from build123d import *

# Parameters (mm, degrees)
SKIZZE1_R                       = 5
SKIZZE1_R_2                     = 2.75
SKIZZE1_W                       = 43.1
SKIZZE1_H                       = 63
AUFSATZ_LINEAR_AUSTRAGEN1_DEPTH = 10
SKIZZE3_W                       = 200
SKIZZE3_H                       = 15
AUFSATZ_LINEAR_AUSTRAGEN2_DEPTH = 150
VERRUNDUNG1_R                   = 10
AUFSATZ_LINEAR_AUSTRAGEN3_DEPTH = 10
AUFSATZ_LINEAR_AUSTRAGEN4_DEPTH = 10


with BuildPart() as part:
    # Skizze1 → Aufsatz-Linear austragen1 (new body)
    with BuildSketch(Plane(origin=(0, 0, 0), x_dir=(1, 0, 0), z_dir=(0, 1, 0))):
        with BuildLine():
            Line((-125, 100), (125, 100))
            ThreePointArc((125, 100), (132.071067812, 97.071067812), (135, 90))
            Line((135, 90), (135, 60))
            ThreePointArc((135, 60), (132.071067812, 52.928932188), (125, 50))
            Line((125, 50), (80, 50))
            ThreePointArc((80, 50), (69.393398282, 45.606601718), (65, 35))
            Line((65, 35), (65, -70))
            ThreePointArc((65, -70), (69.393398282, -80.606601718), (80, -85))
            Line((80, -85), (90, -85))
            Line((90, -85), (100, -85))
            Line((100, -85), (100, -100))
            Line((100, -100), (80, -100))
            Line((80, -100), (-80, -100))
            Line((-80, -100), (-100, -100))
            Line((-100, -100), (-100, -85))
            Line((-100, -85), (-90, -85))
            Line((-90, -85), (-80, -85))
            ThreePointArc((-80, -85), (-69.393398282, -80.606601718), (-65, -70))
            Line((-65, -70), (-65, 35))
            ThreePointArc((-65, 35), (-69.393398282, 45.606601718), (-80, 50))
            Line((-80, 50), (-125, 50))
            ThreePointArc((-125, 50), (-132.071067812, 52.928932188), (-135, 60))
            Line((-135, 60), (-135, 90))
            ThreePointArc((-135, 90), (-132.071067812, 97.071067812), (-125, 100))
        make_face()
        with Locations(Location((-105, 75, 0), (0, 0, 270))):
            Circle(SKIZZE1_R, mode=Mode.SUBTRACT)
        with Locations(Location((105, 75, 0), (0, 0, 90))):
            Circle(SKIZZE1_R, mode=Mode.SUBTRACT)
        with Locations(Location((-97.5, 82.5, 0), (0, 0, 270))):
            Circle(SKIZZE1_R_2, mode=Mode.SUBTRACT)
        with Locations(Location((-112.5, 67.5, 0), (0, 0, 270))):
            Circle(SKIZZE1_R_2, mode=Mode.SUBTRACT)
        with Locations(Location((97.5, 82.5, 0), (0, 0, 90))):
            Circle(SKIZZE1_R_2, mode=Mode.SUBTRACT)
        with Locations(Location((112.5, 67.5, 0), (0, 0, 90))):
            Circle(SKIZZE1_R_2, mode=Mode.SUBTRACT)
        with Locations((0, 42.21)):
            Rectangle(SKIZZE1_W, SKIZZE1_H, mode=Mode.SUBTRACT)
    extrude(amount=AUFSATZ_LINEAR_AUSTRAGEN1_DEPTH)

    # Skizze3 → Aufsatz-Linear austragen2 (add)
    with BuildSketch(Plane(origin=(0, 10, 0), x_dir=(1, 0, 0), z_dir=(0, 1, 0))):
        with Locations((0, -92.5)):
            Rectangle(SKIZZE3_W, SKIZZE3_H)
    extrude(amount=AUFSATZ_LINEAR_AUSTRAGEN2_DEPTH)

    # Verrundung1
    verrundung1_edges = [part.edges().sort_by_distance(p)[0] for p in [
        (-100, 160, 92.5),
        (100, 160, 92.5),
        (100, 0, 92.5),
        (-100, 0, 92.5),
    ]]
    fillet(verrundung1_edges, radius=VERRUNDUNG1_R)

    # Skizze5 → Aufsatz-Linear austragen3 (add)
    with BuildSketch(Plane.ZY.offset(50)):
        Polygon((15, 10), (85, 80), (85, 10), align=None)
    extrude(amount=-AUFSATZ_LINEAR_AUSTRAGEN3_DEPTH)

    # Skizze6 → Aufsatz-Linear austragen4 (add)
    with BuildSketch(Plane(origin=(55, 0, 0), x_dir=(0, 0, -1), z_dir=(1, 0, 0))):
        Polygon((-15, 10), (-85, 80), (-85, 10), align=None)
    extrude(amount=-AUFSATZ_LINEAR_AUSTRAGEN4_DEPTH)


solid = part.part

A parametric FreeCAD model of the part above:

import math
import FreeCAD as App
import Part
import Sketcher

V = App.Vector


def edges_at(feature, points):
    """Names of the edges that pass closest to the given points."""
    edges = feature.Shape.Edges
    near = lambda p: min(range(len(edges)), key=lambda i: edges[i].distToShape(Part.Vertex(*p))[0])
    return sorted({f"Edge{near(p) + 1}" for p in points})

doc = App.newDocument("Part")
body = doc.addObject("PartDesign::Body", "Body")

# Sketch on XZ plane
sketch1 = body.newObject("Sketcher::SketchObject", "Sketch")
sketch1.AttachmentSupport = (doc.getObject("XZ_Plane"), [""])
sketch1.MapMode = "FlatFace"
sketch1.addGeometry(Part.LineSegment(V(125, -100, 0), V(-125, -100, 0)), False)
sketch1.addGeometry(Part.ArcOfCircle(Part.Circle(V(-125, -90, 0), V(0, 0, 1), 10), math.radians(180), math.radians(270)), False)
sketch1.addGeometry(Part.LineSegment(V(-135, -90, 0), V(-135, -60, 0)), False)
sketch1.addGeometry(Part.ArcOfCircle(Part.Circle(V(-125, -60, 0), V(0, 0, 1), 10), math.radians(90), math.radians(180)), False)
sketch1.addGeometry(Part.LineSegment(V(-125, -50, 0), V(-80, -50, 0)), False)
sketch1.addGeometry(Part.ArcOfCircle(Part.Circle(V(-80, -35, 0), V(0, 0, 1), 15), math.radians(-90), math.radians(0)), False)
sketch1.addGeometry(Part.LineSegment(V(-65, -35, 0), V(-65, 70, 0)), False)
sketch1.addGeometry(Part.ArcOfCircle(Part.Circle(V(-80, 70, 0), V(0, 0, 1), 15), math.radians(0), math.radians(90)), False)
sketch1.addGeometry(Part.LineSegment(V(-80, 85, 0), V(-100, 85, 0)), False)
sketch1.addGeometry(Part.LineSegment(V(-100, 85, 0), V(-100, 100, 0)), False)
sketch1.addGeometry(Part.LineSegment(V(-100, 100, 0), V(100, 100, 0)), False)
sketch1.addGeometry(Part.LineSegment(V(100, 100, 0), V(100, 85, 0)), False)
sketch1.addGeometry(Part.LineSegment(V(100, 85, 0), V(80, 85, 0)), False)
sketch1.addGeometry(Part.ArcOfCircle(Part.Circle(V(80, 70, 0), V(0, 0, 1), 15), math.radians(90), math.radians(180)), False)
sketch1.addGeometry(Part.LineSegment(V(65, 70, 0), V(65, -35, 0)), False)
sketch1.addGeometry(Part.ArcOfCircle(Part.Circle(V(80, -35, 0), V(0, 0, 1), 15), math.radians(180), math.radians(270)), False)
sketch1.addGeometry(Part.LineSegment(V(80, -50, 0), V(125, -50, 0)), False)
sketch1.addGeometry(Part.ArcOfCircle(Part.Circle(V(125, -60, 0), V(0, 0, 1), 10), math.radians(0), math.radians(90)), False)
sketch1.addGeometry(Part.LineSegment(V(135, -60, 0), V(135, -90, 0)), False)
sketch1.addGeometry(Part.ArcOfCircle(Part.Circle(V(125, -90, 0), V(0, 0, 1), 10), math.radians(-90), math.radians(0)), False)
sketch1.addGeometry(Part.LineSegment(V(-21.6, -10.7, 0), V(-21.6, -73.7, 0)), False)
sketch1.addGeometry(Part.LineSegment(V(-21.6, -73.7, 0), V(21.6, -73.7, 0)), False)
sketch1.addGeometry(Part.LineSegment(V(21.6, -73.7, 0), V(21.6, -10.7, 0)), False)
sketch1.addGeometry(Part.LineSegment(V(21.6, -10.7, 0), V(-21.6, -10.7, 0)), False)
sketch1.addGeometry(Part.Circle(V(112.5, -67.5, 0), V(0, 0, 1), 2.8), False)
sketch1.addGeometry(Part.Circle(V(105, -75, 0), V(0, 0, 1), 5), False)
sketch1.addGeometry(Part.Circle(V(97.5, -82.5, 0), V(0, 0, 1), 2.8), False)
sketch1.addGeometry(Part.Circle(V(-112.5, -67.5, 0), V(0, 0, 1), 2.8), False)
sketch1.addGeometry(Part.Circle(V(-105, -75, 0), V(0, 0, 1), 5), False)
sketch1.addGeometry(Part.Circle(V(-97.5, -82.5, 0), V(0, 0, 1), 2.8), False)
sketch1.addConstraint(Sketcher.Constraint("Tangent", 0, 2, 1, 2))
sketch1.addConstraint(Sketcher.Constraint("Tangent", 1, 1, 2, 1))
sketch1.addConstraint(Sketcher.Constraint("Tangent", 2, 2, 3, 2))
sketch1.addConstraint(Sketcher.Constraint("Tangent", 3, 1, 4, 1))
sketch1.addConstraint(Sketcher.Constraint("Tangent", 4, 2, 5, 1))
sketch1.addConstraint(Sketcher.Constraint("Tangent", 5, 2, 6, 1))
sketch1.addConstraint(Sketcher.Constraint("Tangent", 6, 2, 7, 1))
sketch1.addConstraint(Sketcher.Constraint("Tangent", 7, 2, 8, 1))
sketch1.addConstraint(Sketcher.Constraint("Coincident", 8, 2, 9, 1))
sketch1.addConstraint(Sketcher.Constraint("Coincident", 9, 2, 10, 1))
sketch1.addConstraint(Sketcher.Constraint("Coincident", 10, 2, 11, 1))
sketch1.addConstraint(Sketcher.Constraint("Coincident", 11, 2, 12, 1))
sketch1.addConstraint(Sketcher.Constraint("Tangent", 12, 2, 13, 1))
sketch1.addConstraint(Sketcher.Constraint("Tangent", 13, 2, 14, 1))
sketch1.addConstraint(Sketcher.Constraint("Tangent", 14, 2, 15, 1))
sketch1.addConstraint(Sketcher.Constraint("Tangent", 15, 2, 16, 1))
sketch1.addConstraint(Sketcher.Constraint("Tangent", 16, 2, 17, 2))
sketch1.addConstraint(Sketcher.Constraint("Tangent", 17, 1, 18, 1))
sketch1.addConstraint(Sketcher.Constraint("Tangent", 18, 2, 19, 2))
sketch1.addConstraint(Sketcher.Constraint("Tangent", 19, 1, 0, 1))
sketch1.addConstraint(Sketcher.Constraint("Coincident", 20, 2, 21, 1))
sketch1.addConstraint(Sketcher.Constraint("Coincident", 21, 2, 22, 1))
sketch1.addConstraint(Sketcher.Constraint("Coincident", 22, 2, 23, 1))
sketch1.addConstraint(Sketcher.Constraint("Coincident", 23, 2, 20, 1))
sketch1.addConstraint(Sketcher.Constraint("Horizontal", 0))
sketch1.addConstraint(Sketcher.Constraint("Vertical", 2))
sketch1.addConstraint(Sketcher.Constraint("Horizontal", 4))
sketch1.addConstraint(Sketcher.Constraint("Vertical", 6))
sketch1.addConstraint(Sketcher.Constraint("Horizontal", 8))
sketch1.addConstraint(Sketcher.Constraint("Vertical", 9))
sketch1.addConstraint(Sketcher.Constraint("Horizontal", 10))
sketch1.addConstraint(Sketcher.Constraint("Vertical", 11))
sketch1.addConstraint(Sketcher.Constraint("Horizontal", 12))
sketch1.addConstraint(Sketcher.Constraint("Vertical", 14))
sketch1.addConstraint(Sketcher.Constraint("Horizontal", 16))
sketch1.addConstraint(Sketcher.Constraint("Vertical", 18))
sketch1.addConstraint(Sketcher.Constraint("Vertical", 20))
sketch1.addConstraint(Sketcher.Constraint("Horizontal", 21))
sketch1.addConstraint(Sketcher.Constraint("Vertical", 22))
sketch1.addConstraint(Sketcher.Constraint("Horizontal", 23))
sketch1.addConstraint(Sketcher.Constraint("Equal", 1, 3))
sketch1.addConstraint(Sketcher.Constraint("Equal", 5, 7))
sketch1.addConstraint(Sketcher.Constraint("Equal", 7, 13))
sketch1.addConstraint(Sketcher.Constraint("Equal", 13, 15))
sketch1.addConstraint(Sketcher.Constraint("Equal", 3, 17))
sketch1.addConstraint(Sketcher.Constraint("Equal", 17, 19))
sketch1.addConstraint(Sketcher.Constraint("Equal", 24, 26))
sketch1.addConstraint(Sketcher.Constraint("Equal", 26, 27))
sketch1.addConstraint(Sketcher.Constraint("Equal", 25, 28))
sketch1.addConstraint(Sketcher.Constraint("Equal", 27, 29))
sketch1.addConstraint(Sketcher.Constraint("Symmetric", 7, 3, 13, 3, -2))
sketch1.addConstraint(Sketcher.Constraint("Symmetric", 3, 3, 17, 3, -2))
sketch1.addConstraint(Sketcher.Constraint("Symmetric", 24, 3, 27, 3, -2))
sketch1.addConstraint(Sketcher.Constraint("Symmetric", 25, 3, 28, 3, -2))
sketch1.addConstraint(Sketcher.Constraint("Symmetric", 26, 3, 29, 3, -2))
sketch1.addConstraint(Sketcher.Constraint("Equal", 8, 12))
sketch1.addConstraint(Sketcher.Constraint("Diameter", 25, 10.0))
sketch1.addConstraint(Sketcher.Constraint("Radius", 1, 10.0))
sketch1.addConstraint(Sketcher.Constraint("Radius", 5, 15.0))
sketch1.addConstraint(Sketcher.Constraint("Diameter", 24, 5.5))
sketch1.addConstraint(Sketcher.Constraint("DistanceX", 0, 2, 0, 1, 250.0))
sketch1.addConstraint(Sketcher.Constraint("DistanceX", 4, 1, 4, 2, 45.0))
sketch1.addConstraint(Sketcher.Constraint("DistanceX", 8, 2, 8, 1, 20.0))
sketch1.addConstraint(Sketcher.Constraint("DistanceY", 2, 1, 2, 2, 30.0))
sketch1.addConstraint(Sketcher.Constraint("DistanceY", 6, 1, 6, 2, 105.0))
sketch1.addConstraint(Sketcher.Constraint("DistanceY", 9, 1, 9, 2, 15.0))
sketch1.addConstraint(Sketcher.Constraint("DistanceY", 20, 2, 20, 1, 63.0))
sketch1.addConstraint(Sketcher.Constraint("DistanceX", 21, 1, 21, 2, 43.1))
sketch1.addConstraint(Sketcher.Constraint("DistanceY", 1, 3, -1, 1, 90.0))
sketch1.addConstraint(Sketcher.Constraint("DistanceX", -1, 1, 25, 3, 105.0))
sketch1.addConstraint(Sketcher.Constraint("DistanceY", 25, 3, -1, 1, 75.0))
sketch1.addConstraint(Sketcher.Constraint("DistanceX", 26, 3, 24, 3, 15.0))
sketch1.addConstraint(Sketcher.Constraint("DistanceY", 26, 3, 24, 3, 15.0))
sketch1.addConstraint(Sketcher.Constraint("DistanceX", -1, 1, 24, 3, 112.5))
sketch1.addConstraint(Sketcher.Constraint("DistanceY", 24, 3, -1, 1, 67.5))
sketch1.addConstraint(Sketcher.Constraint("DistanceX", 20, 2, -1, 1, 21.55))
sketch1.addConstraint(Sketcher.Constraint("DistanceY", 20, 2, -1, 1, 73.71))
pad1 = body.newObject("PartDesign::Pad", "Pad")
pad1.Profile = sketch1
pad1.Length = 10
pad1.Reversed = True

# Sketch on XZ plane
sketch2 = body.newObject("Sketcher::SketchObject", "Sketch001")
sketch2.AttachmentSupport = (doc.getObject("XZ_Plane"), [""])
sketch2.MapMode = "FlatFace"
sketch2.AttachmentOffset = App.Placement(V(0, 0, -10), App.Rotation())
sketch2.addGeometry(Part.LineSegment(V(-100, 85, 0), V(-100, 100, 0)), False)
sketch2.addGeometry(Part.LineSegment(V(-100, 100, 0), V(100, 100, 0)), False)
sketch2.addGeometry(Part.LineSegment(V(100, 100, 0), V(100, 85, 0)), False)
sketch2.addGeometry(Part.LineSegment(V(100, 85, 0), V(-100, 85, 0)), False)
sketch2.addConstraint(Sketcher.Constraint("Coincident", 0, 2, 1, 1))
sketch2.addConstraint(Sketcher.Constraint("Coincident", 1, 2, 2, 1))
sketch2.addConstraint(Sketcher.Constraint("Coincident", 2, 2, 3, 1))
sketch2.addConstraint(Sketcher.Constraint("Coincident", 3, 2, 0, 1))
sketch2.addConstraint(Sketcher.Constraint("Vertical", 0))
sketch2.addConstraint(Sketcher.Constraint("Horizontal", 1))
sketch2.addConstraint(Sketcher.Constraint("Vertical", 2))
sketch2.addConstraint(Sketcher.Constraint("Horizontal", 3))
sketch2.addConstraint(Sketcher.Constraint("DistanceX", 1, 1, 1, 2, 200.0))
sketch2.addConstraint(Sketcher.Constraint("DistanceY", 0, 1, 0, 2, 15.0))
sketch2.addConstraint(Sketcher.Constraint("DistanceX", 0, 2, -1, 1, 100.0))
sketch2.addConstraint(Sketcher.Constraint("DistanceY", -1, 1, 0, 2, 100.0))
pad2 = body.newObject("PartDesign::Pad", "Pad001")
pad2.Profile = sketch2
pad2.Length = 150
pad2.Reversed = True
doc.recompute()

fillet = body.newObject("PartDesign::Fillet", "Fillet")
fillet.Base = (pad2, edges_at(pad2, [
    (-100, 160, 92.5),
    (100, 160, 92.5),
    (100, 0, 92.5),
    (-100, 0, 92.5),
]))
fillet.Radius = 10

# Sketch on YZ plane
sketch3 = body.newObject("Sketcher::SketchObject", "Sketch002")
sketch3.AttachmentSupport = (doc.getObject("YZ_Plane"), [""])
sketch3.MapMode = "FlatFace"
sketch3.AttachmentOffset = App.Placement(V(0, 0, -50), App.Rotation())
sketch3.addGeometry(Part.LineSegment(V(80, 85, 0), V(10, 15, 0)), False)
sketch3.addGeometry(Part.LineSegment(V(10, 15, 0), V(10, 85, 0)), False)
sketch3.addGeometry(Part.LineSegment(V(10, 85, 0), V(80, 85, 0)), False)
sketch3.addConstraint(Sketcher.Constraint("Coincident", 0, 2, 1, 1))
sketch3.addConstraint(Sketcher.Constraint("Coincident", 1, 2, 2, 1))
sketch3.addConstraint(Sketcher.Constraint("Coincident", 2, 2, 0, 1))
sketch3.addConstraint(Sketcher.Constraint("Vertical", 1))
sketch3.addConstraint(Sketcher.Constraint("Horizontal", 2))
sketch3.addConstraint(Sketcher.Constraint("Equal", 2, 1))
sketch3.addConstraint(Sketcher.Constraint("DistanceX", 2, 1, 2, 2, 70.0))
sketch3.addConstraint(Sketcher.Constraint("DistanceX", -1, 1, 0, 2, 10.0))
sketch3.addConstraint(Sketcher.Constraint("DistanceY", -1, 1, 0, 2, 15.0))
pad3 = body.newObject("PartDesign::Pad", "Pad002")
pad3.Profile = sketch3
pad3.Length = 10

# Sketch on YZ plane
sketch4 = body.newObject("Sketcher::SketchObject", "Sketch003")
sketch4.AttachmentSupport = (doc.getObject("YZ_Plane"), [""])
sketch4.MapMode = "FlatFace"
sketch4.AttachmentOffset = App.Placement(V(0, 0, 55), App.Rotation())
sketch4.addGeometry(Part.LineSegment(V(10, 15, 0), V(80, 85, 0)), False)
sketch4.addGeometry(Part.LineSegment(V(80, 85, 0), V(10, 85, 0)), False)
sketch4.addGeometry(Part.LineSegment(V(10, 85, 0), V(10, 15, 0)), False)
sketch4.addConstraint(Sketcher.Constraint("Coincident", 0, 2, 1, 1))
sketch4.addConstraint(Sketcher.Constraint("Coincident", 1, 2, 2, 1))
sketch4.addConstraint(Sketcher.Constraint("Coincident", 2, 2, 0, 1))
sketch4.addConstraint(Sketcher.Constraint("Horizontal", 1))
sketch4.addConstraint(Sketcher.Constraint("Vertical", 2))
sketch4.addConstraint(Sketcher.Constraint("Equal", 1, 2))
sketch4.addConstraint(Sketcher.Constraint("DistanceX", 1, 2, 1, 1, 70.0))
sketch4.addConstraint(Sketcher.Constraint("DistanceX", -1, 1, 0, 2, 80.0))
sketch4.addConstraint(Sketcher.Constraint("DistanceY", -1, 1, 0, 2, 85.0))
pad4 = body.newObject("PartDesign::Pad", "Pad003")
pad4.Profile = sketch4
pad4.Length = 10
pad4.Reversed = True

doc.recompute()
